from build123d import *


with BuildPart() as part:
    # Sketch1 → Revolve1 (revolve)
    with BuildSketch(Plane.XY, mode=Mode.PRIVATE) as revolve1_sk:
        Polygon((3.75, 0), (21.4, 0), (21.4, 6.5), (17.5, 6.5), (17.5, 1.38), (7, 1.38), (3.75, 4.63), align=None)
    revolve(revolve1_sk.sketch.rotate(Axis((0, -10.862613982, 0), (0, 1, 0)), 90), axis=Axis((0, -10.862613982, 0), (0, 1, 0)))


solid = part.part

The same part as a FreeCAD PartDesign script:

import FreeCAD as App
import Part
import Sketcher

V = App.Vector
Q = App.Units.Quantity

doc = App.newDocument("Part")
body = doc.addObject("PartDesign::Body", "Body")

sketch1 = body.newObject("Sketcher::SketchObject", "Sketch")
sketch1.AttachmentSupport = (doc.getObject("XY_Plane"), [""])
sketch1.MapMode = "FlatFace"
sketch1.addGeometry(Part.LineSegment(V(3.75, 0, 0), V(21.4, 0, 0)), False)
sketch1.addGeometry(Part.LineSegment(V(21.4, 0, 0), V(21.4, 6.5, 0)), False)
sketch1.addGeometry(Part.LineSegment(V(21.4, 6.5, 0), V(17.5, 6.5, 0)), False)
sketch1.addGeometry(Part.LineSegment(V(17.5, 6.5, 0), V(17.5, 1.38, 0)), False)
sketch1.addGeometry(Part.LineSegment(V(17.5, 1.38, 0), V(7, 1.38, 0)), False)
sketch1.addGeometry(Part.LineSegment(V(7, 1.38, 0), V(3.75, 4.63, 0)), False)
sketch1.addGeometry(Part.LineSegment(V(3.75, 4.63, 0), V(3.75, 0, 0)), False)
sketch1.addConstraint(Sketcher.Constraint("Coincident", 0, 2, 1, 1))
sketch1.addConstraint(Sketcher.Constraint("Coincident", 1, 2, 2, 1))
sketch1.addConstraint(Sketcher.Constraint("Coincident", 2, 2, 3, 1))
sketch1.addConstraint(Sketcher.Constraint("Coincident", 3, 2, 4, 1))
sketch1.addConstraint(Sketcher.Constraint("Coincident", 4, 2, 5, 1))
sketch1.addConstraint(Sketcher.Constraint("Coincident", 5, 2, 6, 1))
sketch1.addConstraint(Sketcher.Constraint("Coincident", 6, 2, 0, 1))
sketch1.addConstraint(Sketcher.Constraint("Horizontal", 0))
sketch1.addConstraint(Sketcher.Constraint("Vertical", 1))
sketch1.addConstraint(Sketcher.Constraint("Horizontal", 2))
sketch1.addConstraint(Sketcher.Constraint("Vertical", 3))
sketch1.addConstraint(Sketcher.Constraint("Horizontal", 4))
sketch1.addConstraint(Sketcher.Constraint("Vertical", 6))
sketch1.addConstraint(Sketcher.Constraint("PointOnObject", 0, 2, -1))
sketch1.addConstraint(Sketcher.Constraint("Angle", 5, Q("135 deg")))
sketch1.addConstraint(Sketcher.Constraint("DistanceX", 2, 2, 2, 1, 3.9))
sketch1.addConstraint(Sketcher.Constraint("DistanceX", 4, 2, 4, 1, 10.5))
sketch1.addConstraint(Sketcher.Constraint("DistanceY", 1, 1, 1, 2, 6.5))
sketch1.addConstraint(Sketcher.Constraint("DistanceX", -1, 1, 4, 2, 7.0))
sketch1.addConstraint(Sketcher.Constraint("DistanceX", 0, 1, 0, 2, 17.65))
sketch1.addConstraint(Sketcher.Constraint("DistanceY", 3, 2, 3, 1, 5.12))
revolution = body.newObject("PartDesign::Revolution", "Revolution")
revolution.Profile = sketch1
revolution.ReferenceAxis = (sketch1, ["V_Axis"])
revolution.Angle = 360

doc.recompute()
